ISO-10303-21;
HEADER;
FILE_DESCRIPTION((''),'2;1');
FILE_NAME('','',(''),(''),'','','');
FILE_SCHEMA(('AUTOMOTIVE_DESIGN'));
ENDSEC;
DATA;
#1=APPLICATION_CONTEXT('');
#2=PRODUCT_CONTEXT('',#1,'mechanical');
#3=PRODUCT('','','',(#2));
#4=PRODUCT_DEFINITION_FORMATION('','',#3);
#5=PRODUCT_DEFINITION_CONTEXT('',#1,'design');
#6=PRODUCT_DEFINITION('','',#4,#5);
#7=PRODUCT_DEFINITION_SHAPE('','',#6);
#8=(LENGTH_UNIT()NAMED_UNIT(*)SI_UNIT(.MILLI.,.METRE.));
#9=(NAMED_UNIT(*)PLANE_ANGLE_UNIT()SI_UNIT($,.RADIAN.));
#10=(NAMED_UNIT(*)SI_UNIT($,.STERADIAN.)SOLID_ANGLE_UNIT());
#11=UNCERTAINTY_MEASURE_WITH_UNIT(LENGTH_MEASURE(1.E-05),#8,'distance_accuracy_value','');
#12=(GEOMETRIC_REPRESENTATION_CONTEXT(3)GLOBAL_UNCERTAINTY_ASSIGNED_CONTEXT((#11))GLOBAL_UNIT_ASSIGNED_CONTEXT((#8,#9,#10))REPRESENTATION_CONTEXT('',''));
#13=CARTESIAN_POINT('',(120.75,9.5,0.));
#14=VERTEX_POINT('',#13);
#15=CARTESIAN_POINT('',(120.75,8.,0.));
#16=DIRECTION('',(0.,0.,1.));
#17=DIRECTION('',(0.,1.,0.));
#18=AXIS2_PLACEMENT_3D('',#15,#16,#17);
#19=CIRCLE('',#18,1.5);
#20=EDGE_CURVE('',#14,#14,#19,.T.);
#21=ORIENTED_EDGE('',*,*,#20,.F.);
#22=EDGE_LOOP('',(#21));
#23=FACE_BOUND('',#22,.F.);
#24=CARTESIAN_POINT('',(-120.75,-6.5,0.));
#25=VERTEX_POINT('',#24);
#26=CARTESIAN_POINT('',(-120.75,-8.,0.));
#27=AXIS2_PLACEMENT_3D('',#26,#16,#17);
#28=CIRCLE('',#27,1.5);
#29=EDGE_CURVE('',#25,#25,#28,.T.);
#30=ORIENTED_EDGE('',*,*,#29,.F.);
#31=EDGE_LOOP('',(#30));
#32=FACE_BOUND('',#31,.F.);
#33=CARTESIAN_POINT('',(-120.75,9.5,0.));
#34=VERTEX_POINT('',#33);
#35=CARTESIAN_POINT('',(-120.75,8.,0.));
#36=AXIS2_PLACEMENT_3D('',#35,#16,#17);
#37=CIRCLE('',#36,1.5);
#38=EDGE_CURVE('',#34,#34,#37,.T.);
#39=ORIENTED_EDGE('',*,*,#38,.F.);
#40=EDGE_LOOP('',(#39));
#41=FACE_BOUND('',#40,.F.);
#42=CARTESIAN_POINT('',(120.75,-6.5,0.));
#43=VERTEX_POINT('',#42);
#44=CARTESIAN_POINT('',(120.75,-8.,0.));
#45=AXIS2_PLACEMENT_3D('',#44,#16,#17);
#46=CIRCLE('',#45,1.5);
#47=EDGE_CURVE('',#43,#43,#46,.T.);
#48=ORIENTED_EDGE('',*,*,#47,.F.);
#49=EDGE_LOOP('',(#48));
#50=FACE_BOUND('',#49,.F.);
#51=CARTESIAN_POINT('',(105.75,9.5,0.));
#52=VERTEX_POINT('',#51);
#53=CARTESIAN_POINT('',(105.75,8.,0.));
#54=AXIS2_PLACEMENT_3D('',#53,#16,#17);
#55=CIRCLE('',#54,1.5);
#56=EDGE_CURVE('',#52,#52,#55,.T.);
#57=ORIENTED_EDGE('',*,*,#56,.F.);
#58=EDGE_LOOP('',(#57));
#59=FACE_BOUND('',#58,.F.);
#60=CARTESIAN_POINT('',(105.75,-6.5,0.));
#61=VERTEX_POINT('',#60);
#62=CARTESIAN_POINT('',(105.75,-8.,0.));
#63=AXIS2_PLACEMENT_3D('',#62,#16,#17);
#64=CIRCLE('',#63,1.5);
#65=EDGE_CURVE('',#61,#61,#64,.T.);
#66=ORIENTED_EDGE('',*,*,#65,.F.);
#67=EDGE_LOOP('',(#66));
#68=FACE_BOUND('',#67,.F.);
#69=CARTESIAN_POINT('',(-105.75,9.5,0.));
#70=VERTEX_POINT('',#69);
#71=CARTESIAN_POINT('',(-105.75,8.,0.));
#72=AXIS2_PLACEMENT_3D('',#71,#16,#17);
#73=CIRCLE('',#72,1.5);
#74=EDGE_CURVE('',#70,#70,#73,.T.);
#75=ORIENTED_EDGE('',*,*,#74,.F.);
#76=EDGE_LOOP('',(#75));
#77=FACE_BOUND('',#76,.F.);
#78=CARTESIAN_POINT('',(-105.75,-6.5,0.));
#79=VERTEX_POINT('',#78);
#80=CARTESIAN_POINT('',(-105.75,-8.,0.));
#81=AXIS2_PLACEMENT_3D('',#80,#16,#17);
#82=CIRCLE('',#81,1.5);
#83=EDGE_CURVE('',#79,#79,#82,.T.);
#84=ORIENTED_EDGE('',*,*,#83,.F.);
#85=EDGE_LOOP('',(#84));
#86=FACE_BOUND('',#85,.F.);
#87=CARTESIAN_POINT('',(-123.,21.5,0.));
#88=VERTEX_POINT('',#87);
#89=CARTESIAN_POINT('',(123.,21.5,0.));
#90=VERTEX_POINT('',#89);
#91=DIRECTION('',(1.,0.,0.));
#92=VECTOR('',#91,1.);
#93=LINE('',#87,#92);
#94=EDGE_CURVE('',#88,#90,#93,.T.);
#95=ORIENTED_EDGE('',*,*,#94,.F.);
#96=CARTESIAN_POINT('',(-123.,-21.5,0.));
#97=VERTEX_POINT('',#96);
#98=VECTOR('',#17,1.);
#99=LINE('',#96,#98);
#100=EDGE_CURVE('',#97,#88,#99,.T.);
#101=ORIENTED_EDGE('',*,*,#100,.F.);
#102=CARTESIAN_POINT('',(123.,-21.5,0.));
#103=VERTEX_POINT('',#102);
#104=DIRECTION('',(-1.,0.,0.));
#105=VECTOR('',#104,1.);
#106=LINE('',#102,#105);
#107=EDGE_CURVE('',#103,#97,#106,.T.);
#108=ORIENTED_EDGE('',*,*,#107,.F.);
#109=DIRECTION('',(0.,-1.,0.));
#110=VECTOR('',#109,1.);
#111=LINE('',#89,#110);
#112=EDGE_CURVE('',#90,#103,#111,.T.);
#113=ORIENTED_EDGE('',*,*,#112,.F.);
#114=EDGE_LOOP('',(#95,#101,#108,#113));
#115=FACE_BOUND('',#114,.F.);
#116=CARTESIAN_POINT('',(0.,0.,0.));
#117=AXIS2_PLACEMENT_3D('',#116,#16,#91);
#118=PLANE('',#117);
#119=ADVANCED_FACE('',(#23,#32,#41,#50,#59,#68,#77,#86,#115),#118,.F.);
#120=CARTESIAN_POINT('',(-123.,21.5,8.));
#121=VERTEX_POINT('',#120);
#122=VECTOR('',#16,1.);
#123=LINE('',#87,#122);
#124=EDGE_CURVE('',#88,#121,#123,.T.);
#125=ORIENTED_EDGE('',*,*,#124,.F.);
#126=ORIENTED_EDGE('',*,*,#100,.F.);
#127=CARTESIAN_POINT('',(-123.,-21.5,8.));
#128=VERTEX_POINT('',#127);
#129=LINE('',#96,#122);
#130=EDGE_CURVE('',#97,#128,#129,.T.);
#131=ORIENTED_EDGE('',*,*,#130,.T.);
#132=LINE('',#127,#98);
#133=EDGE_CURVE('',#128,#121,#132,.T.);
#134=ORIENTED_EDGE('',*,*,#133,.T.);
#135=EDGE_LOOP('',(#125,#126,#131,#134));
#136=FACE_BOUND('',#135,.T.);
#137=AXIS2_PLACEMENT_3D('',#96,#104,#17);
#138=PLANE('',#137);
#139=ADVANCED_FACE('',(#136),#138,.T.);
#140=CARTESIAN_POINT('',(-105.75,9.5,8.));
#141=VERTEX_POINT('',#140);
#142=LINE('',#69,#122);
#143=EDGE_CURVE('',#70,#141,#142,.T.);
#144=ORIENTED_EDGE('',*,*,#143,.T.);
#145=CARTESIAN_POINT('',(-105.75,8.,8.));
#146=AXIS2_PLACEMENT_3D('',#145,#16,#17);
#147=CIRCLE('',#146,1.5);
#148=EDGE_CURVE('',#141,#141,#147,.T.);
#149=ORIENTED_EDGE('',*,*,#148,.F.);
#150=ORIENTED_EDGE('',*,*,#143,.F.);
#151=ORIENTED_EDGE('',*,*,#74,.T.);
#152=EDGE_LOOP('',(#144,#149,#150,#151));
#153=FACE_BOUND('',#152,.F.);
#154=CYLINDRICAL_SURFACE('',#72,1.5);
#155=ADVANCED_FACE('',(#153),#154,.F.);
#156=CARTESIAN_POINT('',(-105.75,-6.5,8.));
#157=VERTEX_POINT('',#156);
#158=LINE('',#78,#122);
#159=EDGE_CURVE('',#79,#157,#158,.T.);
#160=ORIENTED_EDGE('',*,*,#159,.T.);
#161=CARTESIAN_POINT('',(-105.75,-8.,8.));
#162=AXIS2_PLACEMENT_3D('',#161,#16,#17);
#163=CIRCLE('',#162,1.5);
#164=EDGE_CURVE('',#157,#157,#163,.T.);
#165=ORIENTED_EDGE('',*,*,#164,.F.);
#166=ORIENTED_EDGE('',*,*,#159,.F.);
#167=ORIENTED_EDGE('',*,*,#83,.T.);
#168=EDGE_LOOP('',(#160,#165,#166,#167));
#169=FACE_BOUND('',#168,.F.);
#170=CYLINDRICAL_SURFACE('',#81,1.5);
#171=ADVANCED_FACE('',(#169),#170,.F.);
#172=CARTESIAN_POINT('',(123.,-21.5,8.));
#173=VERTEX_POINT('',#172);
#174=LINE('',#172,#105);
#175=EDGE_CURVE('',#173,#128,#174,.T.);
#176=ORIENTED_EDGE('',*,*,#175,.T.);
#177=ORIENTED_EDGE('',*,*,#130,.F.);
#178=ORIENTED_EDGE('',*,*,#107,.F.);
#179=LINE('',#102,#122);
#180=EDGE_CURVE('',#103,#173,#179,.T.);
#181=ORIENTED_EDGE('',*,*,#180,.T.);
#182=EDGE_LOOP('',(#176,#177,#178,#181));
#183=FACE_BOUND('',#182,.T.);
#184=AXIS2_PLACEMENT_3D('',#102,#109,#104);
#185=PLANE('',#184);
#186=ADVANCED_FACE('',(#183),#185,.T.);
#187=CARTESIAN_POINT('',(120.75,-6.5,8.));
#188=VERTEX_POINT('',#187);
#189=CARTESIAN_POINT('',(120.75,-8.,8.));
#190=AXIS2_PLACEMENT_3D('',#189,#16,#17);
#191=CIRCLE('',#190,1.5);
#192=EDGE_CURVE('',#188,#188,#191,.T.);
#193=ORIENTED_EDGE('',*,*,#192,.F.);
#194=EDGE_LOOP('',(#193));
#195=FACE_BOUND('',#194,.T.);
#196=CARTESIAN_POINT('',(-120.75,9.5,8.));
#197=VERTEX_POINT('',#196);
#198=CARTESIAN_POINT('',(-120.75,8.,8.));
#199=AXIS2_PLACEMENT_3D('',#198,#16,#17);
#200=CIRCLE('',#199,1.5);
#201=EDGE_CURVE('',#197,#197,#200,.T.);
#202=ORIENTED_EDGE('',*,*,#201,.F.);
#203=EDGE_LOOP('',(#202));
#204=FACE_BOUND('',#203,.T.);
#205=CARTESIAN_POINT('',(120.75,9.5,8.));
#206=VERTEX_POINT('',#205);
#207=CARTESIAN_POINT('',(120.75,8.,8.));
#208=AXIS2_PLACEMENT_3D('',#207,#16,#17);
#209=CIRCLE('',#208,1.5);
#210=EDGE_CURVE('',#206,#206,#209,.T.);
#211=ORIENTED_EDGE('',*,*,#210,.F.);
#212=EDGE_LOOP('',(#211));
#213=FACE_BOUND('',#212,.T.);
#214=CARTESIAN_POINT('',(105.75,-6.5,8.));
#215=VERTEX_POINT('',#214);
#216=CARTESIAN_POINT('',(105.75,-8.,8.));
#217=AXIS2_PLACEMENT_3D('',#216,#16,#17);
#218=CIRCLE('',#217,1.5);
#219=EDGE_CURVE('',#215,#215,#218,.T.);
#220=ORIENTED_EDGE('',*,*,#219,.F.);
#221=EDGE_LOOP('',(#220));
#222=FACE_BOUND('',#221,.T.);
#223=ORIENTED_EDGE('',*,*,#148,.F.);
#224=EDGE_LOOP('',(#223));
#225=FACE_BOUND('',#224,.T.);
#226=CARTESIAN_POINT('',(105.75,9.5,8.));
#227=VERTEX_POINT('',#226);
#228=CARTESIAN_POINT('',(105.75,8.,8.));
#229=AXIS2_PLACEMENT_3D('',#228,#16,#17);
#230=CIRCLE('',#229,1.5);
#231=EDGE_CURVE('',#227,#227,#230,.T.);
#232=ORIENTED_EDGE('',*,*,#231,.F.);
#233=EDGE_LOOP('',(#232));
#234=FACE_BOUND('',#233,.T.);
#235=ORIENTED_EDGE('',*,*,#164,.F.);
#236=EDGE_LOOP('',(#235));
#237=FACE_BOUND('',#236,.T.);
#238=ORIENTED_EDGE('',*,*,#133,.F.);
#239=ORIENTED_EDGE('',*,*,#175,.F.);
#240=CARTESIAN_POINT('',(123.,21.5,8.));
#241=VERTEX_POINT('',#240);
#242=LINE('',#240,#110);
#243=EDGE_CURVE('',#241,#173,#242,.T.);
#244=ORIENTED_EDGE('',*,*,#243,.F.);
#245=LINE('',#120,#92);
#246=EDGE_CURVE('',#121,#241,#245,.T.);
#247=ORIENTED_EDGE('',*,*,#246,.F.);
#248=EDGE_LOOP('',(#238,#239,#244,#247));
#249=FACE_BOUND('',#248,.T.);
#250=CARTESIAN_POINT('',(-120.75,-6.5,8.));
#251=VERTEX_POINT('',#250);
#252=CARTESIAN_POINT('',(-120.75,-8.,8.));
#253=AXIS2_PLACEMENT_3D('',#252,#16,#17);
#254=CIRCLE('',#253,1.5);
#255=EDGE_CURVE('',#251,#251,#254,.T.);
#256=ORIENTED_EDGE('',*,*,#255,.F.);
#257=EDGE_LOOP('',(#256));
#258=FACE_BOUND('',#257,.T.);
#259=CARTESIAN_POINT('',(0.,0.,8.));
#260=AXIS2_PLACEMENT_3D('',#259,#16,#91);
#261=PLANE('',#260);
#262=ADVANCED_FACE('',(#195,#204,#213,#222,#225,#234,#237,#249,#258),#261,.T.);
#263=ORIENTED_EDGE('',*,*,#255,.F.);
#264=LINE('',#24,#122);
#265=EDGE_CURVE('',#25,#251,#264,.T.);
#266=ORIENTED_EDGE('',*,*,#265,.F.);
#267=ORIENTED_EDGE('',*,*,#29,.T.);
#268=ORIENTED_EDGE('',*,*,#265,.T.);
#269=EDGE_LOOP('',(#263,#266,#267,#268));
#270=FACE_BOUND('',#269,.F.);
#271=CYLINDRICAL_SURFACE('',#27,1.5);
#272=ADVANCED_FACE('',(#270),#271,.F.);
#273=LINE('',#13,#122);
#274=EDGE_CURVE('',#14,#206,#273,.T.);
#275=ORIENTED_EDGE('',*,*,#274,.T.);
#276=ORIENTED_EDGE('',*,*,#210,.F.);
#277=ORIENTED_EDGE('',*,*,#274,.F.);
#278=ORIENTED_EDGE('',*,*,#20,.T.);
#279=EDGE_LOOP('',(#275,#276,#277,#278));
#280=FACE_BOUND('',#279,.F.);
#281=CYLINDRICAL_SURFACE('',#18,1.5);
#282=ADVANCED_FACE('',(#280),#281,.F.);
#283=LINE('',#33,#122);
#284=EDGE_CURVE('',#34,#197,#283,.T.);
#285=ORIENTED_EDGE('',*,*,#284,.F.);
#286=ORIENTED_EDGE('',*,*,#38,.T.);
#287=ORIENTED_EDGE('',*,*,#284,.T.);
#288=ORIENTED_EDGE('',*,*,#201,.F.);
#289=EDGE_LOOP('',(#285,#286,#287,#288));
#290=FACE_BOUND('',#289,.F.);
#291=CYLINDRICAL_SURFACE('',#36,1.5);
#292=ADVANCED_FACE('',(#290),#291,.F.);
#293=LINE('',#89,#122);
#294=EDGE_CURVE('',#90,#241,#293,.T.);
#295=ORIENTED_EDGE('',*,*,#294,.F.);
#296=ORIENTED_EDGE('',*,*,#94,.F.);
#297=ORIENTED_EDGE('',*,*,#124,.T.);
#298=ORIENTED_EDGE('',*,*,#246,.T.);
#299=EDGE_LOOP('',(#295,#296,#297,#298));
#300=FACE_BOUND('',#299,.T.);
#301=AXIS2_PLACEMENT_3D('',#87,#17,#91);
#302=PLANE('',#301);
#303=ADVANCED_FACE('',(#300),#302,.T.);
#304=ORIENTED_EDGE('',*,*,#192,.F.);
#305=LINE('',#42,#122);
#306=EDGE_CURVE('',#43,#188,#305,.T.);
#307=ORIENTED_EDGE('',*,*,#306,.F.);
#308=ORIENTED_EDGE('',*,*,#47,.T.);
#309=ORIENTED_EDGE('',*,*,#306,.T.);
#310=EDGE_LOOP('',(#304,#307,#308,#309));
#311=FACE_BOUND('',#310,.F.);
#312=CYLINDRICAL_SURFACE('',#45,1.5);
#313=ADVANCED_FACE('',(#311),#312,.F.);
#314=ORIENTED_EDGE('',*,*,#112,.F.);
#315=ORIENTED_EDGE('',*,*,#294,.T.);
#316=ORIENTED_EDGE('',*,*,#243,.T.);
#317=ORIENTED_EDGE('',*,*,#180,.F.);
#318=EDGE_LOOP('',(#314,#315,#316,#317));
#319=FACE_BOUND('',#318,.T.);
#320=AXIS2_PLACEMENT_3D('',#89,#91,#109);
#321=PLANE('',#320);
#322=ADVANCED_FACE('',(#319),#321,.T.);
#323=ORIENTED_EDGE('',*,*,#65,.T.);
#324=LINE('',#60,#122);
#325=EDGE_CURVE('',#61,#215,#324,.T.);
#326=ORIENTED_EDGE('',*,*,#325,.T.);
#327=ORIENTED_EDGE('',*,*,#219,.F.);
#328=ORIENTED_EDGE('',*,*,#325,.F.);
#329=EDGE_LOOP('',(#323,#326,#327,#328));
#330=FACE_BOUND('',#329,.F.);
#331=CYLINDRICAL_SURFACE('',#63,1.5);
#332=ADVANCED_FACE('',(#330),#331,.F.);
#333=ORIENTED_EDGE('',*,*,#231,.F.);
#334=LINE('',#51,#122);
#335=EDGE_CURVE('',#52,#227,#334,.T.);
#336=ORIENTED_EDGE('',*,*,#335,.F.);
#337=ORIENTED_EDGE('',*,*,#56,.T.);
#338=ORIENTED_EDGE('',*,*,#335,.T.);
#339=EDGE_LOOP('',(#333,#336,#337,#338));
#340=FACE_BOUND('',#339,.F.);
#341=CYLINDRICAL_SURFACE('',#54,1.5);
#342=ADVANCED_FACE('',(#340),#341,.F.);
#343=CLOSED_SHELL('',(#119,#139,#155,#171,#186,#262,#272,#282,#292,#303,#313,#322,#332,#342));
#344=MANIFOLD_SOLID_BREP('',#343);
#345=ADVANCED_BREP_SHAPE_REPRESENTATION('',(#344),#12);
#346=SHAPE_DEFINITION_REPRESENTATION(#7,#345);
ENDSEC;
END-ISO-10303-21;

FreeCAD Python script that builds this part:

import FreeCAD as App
import Part
import Sketcher
Q = App.Units.Quantity

doc = App.newDocument("Part")
body = doc.addObject("PartDesign::Body", "Body")

sketch1 = body.newObject("Sketcher::SketchObject", "Sketch")
sketch1.AttachmentSupport = (doc.getObject("XY_Plane"), [""])
sketch1.MapMode = "FlatFace"
sketch1.addGeometry(Part.LineSegment(App.Vector(123, 22, 0), App.Vector(-123, 22, 0)), False)
sketch1.addGeometry(Part.LineSegment(App.Vector(-123, 22, 0), App.Vector(-123, -22, 0)), False)
sketch1.addGeometry(Part.LineSegment(App.Vector(-123, -22, 0), App.Vector(123, -22, 0)), False)
sketch1.addGeometry(Part.LineSegment(App.Vector(123, -22, 0), App.Vector(123, 22, 0)), False)
sketch1.addConstraint(Sketcher.Constraint("Coincident", 0, 2, 1, 1))
sketch1.addConstraint(Sketcher.Constraint("Coincident", 1, 2, 2, 1))
sketch1.addConstraint(Sketcher.Constraint("Coincident", 2, 2, 3, 1))
sketch1.addConstraint(Sketcher.Constraint("Coincident", 3, 2, 0, 1))
sketch1.addConstraint(Sketcher.Constraint("Horizontal", 0))
sketch1.addConstraint(Sketcher.Constraint("Vertical", 1))
sketch1.addConstraint(Sketcher.Constraint("Horizontal", 2))
sketch1.addConstraint(Sketcher.Constraint("Vertical", 3))
sketch1.addConstraint(Sketcher.Constraint("Symmetric", 0, 2, 2, 2, -1, 1))
sketch1.addConstraint(Sketcher.Constraint("DistanceX", 0, 2, 0, 1, Q("246 mm")))
sketch1.addConstraint(Sketcher.Constraint("DistanceY", 1, 2, 1, 1, Q("43 mm")))
pad1 = body.newObject("PartDesign::Pad", "Pad")
pad1.Profile = sketch1
pad1.Length = 8

sketch2 = body.newObject("Sketcher::SketchObject", "Sketch001")
sketch2.AttachmentSupport = (doc.getObject("XY_Plane"), [""])
sketch2.MapMode = "FlatFace"
sketch2.addGeometry(Part.Circle(App.Vector(-105.8, -8, 0), App.Vector(0, 0, 1), 1.5), False)
sketch2.addGeometry(Part.Circle(App.Vector(-120.8, -8, 0), App.Vector(0, 0, 1), 1.5), False)
sketch2.addGeometry(Part.Circle(App.Vector(-120.8, 8, 0), App.Vector(0, 0, 1), 1.5), False)
sketch2.addGeometry(Part.Circle(App.Vector(-105.8, 8, 0), App.Vector(0, 0, 1), 1.5), False)
sketch2.addGeometry(Part.Circle(App.Vector(120.8, -8, 0), App.Vector(0, 0, 1), 1.5), False)
sketch2.addGeometry(Part.Circle(App.Vector(105.8, -8, 0), App.Vector(0, 0, 1), 1.5), False)
sketch2.addGeometry(Part.Circle(App.Vector(105.8, 8, 0), App.Vector(0, 0, 1), 1.5), False)
sketch2.addGeometry(Part.Circle(App.Vector(120.8, 8, 0), App.Vector(0, 0, 1), 1.5), False)
sketch2.addConstraint(Sketcher.Constraint("Equal", 0, 1))
sketch2.addConstraint(Sketcher.Constraint("Equal", 1, 2))
sketch2.addConstraint(Sketcher.Constraint("Equal", 2, 3))
sketch2.addConstraint(Sketcher.Constraint("Equal", 3, 4))
sketch2.addConstraint(Sketcher.Constraint("Equal", 4, 5))
sketch2.addConstraint(Sketcher.Constraint("Equal", 5, 6))
sketch2.addConstraint(Sketcher.Constraint("Equal", 6, 7))
sketch2.addConstraint(Sketcher.Constraint("Symmetric", 2, 3, 4, 3, -1, 1))
sketch2.addConstraint(Sketcher.Constraint("Symmetric", 3, 3, 5, 3, -1, 1))
sketch2.addConstraint(Sketcher.Constraint("Symmetric", 0, 3, 6, 3, -1, 1))
sketch2.addConstraint(Sketcher.Constraint("Symmetric", 1, 3, 7, 3, -1, 1))
sketch2.addConstraint(Sketcher.Constraint("Symmetric", 1, 3, 4, 3, -2))
sketch2.addConstraint(Sketcher.Constraint("Symmetric", 0, 3, 5, 3, -2))
sketch2.addConstraint(Sketcher.Constraint("Horizontal", 0, 3, 1, 3))
sketch2.addConstraint(Sketcher.Constraint("Diameter", 0, Q("3 mm")))
sketch2.addConstraint(Sketcher.Constraint("DistanceY", 0, 3, -1, 1, Q("8 mm")))
sketch2.addConstraint(Sketcher.Constraint("DistanceX", 1, 3, 0, 3, Q("15 mm")))
sketch2.addConstraint(Sketcher.Constraint("DistanceX", 0, 3, 4, 3, Q("226.5 mm")))
doc.recompute()
hole = body.newObject("PartDesign::Hole", "Hole")
hole.Profile = sketch2
hole.ThreadType = "None"
hole.Diameter = 3
hole.DepthType = "ThroughAll"
hole.Reversed = True

doc.recompute()
